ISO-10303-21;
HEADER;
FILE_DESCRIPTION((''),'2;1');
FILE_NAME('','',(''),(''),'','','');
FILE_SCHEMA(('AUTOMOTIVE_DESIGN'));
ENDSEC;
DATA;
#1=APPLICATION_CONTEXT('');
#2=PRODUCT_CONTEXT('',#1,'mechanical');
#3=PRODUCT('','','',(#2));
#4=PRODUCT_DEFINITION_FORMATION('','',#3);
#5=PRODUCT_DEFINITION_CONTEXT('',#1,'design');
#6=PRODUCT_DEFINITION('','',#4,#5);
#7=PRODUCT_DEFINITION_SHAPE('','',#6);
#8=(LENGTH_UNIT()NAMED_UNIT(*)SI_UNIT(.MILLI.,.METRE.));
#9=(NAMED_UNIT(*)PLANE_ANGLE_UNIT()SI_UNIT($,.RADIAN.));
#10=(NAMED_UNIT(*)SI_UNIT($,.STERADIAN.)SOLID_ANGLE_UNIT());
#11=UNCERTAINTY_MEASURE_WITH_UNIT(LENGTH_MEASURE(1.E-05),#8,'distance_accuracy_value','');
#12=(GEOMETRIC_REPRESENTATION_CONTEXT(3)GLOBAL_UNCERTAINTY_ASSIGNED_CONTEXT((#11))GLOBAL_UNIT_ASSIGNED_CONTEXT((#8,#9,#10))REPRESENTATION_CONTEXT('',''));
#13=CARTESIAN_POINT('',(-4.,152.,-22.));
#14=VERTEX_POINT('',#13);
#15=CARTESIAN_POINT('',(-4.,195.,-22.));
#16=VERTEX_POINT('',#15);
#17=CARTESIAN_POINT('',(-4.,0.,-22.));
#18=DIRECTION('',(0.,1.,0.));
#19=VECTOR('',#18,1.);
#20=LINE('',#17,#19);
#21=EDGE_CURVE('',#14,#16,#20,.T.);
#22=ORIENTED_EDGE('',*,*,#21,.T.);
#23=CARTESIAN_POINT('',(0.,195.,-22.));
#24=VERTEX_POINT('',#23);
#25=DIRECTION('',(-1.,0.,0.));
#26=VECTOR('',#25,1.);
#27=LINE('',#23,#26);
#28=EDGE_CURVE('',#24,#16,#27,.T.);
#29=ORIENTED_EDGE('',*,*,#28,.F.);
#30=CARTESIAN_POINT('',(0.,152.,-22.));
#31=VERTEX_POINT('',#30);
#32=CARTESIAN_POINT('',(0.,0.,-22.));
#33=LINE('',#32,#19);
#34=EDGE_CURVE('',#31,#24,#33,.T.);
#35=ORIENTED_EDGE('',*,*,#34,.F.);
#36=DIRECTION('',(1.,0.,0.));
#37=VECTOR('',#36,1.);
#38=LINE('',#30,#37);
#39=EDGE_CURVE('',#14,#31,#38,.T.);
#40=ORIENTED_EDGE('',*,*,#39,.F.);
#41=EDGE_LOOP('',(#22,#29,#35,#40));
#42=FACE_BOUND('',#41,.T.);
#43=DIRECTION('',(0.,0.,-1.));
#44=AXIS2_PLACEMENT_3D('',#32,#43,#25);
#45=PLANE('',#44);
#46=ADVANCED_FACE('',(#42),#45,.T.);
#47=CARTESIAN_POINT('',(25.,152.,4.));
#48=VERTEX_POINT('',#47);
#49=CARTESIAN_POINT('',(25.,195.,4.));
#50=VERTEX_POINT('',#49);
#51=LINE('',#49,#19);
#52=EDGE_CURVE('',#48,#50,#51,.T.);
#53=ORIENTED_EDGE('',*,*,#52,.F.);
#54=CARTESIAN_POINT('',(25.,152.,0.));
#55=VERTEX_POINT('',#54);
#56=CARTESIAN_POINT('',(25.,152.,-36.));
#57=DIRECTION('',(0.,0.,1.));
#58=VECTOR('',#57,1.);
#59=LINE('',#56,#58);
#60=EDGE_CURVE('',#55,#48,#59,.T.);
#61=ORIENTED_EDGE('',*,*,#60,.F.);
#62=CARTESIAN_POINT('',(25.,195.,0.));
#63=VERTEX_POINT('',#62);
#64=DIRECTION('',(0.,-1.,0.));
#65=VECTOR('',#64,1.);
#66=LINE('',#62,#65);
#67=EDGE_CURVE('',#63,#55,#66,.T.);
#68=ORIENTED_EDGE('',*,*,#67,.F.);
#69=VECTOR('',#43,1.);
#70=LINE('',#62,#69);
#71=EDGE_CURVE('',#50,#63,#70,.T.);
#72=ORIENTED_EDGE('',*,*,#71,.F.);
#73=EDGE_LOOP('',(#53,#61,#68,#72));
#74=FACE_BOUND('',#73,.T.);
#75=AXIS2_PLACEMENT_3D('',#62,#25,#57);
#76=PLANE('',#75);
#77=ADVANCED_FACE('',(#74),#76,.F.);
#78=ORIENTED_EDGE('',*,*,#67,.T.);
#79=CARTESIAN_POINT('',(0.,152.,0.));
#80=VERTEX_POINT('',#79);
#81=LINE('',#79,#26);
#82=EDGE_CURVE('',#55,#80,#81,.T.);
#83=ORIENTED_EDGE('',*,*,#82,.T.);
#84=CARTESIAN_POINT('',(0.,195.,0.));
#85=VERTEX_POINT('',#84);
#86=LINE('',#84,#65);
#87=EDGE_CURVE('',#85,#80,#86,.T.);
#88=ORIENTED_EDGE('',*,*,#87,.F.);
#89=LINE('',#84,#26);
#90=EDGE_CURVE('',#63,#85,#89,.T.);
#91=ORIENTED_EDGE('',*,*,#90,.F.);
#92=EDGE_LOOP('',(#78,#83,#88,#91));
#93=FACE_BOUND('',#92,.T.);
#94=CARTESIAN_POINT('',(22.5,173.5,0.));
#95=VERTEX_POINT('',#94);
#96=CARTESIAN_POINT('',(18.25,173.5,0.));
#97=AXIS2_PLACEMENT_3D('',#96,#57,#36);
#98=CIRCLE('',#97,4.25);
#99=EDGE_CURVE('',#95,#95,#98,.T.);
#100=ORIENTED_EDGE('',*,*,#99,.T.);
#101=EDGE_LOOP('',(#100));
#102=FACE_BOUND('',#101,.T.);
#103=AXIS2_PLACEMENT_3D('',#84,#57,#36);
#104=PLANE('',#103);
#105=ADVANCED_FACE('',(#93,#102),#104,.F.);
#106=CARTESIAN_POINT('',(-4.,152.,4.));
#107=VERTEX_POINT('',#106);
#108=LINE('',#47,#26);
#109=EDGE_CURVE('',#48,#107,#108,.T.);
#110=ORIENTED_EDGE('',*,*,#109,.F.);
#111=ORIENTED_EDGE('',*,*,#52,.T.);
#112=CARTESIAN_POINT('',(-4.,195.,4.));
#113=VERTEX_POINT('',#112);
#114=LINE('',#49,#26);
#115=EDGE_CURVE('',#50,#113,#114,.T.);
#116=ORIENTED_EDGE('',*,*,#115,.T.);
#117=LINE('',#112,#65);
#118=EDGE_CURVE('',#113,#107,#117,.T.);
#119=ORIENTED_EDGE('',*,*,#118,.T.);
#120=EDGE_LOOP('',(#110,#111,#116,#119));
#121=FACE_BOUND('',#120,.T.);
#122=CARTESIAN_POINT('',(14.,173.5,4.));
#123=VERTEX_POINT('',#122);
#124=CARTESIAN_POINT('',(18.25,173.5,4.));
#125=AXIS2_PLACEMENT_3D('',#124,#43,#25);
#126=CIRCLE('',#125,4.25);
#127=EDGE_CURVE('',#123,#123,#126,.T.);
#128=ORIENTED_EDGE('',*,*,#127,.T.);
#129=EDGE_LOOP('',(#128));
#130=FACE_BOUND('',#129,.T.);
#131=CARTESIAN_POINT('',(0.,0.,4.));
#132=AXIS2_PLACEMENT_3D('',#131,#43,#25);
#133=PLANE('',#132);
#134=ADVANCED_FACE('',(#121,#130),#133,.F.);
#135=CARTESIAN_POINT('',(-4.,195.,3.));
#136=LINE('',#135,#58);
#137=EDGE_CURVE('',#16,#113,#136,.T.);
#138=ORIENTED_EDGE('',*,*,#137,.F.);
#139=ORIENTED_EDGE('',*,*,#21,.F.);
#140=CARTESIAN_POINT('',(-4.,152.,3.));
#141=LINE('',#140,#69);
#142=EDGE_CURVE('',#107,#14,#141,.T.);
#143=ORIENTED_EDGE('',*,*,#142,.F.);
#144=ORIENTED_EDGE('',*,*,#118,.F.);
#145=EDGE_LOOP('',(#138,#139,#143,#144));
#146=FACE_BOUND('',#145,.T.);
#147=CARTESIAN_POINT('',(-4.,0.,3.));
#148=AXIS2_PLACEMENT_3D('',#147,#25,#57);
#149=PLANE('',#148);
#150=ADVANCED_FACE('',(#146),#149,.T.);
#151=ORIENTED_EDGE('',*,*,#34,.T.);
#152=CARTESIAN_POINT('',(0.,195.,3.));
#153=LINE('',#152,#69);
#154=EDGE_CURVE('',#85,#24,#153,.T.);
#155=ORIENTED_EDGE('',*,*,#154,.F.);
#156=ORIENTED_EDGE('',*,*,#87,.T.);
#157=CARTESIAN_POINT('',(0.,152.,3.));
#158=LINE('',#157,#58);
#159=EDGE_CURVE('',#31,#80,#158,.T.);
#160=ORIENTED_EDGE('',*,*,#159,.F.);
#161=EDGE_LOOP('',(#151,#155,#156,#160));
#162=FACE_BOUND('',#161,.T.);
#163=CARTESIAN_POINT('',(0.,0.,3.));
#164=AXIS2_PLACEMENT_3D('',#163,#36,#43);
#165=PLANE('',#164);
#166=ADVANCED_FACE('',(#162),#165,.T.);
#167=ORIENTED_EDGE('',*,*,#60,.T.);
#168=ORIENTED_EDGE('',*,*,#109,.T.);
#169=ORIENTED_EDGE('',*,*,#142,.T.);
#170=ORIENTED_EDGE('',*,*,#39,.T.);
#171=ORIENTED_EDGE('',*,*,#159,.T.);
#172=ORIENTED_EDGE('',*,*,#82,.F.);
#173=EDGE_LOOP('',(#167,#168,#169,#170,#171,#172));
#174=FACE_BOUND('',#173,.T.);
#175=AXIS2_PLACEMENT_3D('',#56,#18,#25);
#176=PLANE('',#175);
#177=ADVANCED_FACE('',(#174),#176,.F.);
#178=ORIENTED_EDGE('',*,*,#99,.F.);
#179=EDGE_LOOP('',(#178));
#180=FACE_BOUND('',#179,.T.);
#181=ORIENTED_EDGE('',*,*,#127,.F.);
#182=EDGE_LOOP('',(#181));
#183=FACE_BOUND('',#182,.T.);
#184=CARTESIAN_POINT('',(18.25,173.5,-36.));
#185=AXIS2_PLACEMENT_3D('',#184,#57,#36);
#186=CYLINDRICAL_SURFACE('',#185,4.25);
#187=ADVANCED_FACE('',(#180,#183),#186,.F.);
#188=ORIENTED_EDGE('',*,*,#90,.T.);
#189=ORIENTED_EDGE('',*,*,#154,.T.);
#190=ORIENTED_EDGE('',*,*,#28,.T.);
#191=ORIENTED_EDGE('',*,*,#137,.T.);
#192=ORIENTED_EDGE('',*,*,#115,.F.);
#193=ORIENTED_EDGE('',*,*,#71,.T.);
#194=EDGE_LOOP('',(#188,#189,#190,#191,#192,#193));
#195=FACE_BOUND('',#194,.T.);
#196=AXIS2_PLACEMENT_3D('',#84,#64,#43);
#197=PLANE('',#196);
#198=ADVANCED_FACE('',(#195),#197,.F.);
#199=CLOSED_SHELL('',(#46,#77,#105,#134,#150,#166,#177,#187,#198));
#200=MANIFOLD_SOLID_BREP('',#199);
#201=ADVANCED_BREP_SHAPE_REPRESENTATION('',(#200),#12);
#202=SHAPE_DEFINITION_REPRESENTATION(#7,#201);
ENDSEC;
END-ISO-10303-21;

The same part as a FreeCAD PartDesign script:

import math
import FreeCAD as App
import Part
import Sketcher

V = App.Vector
Q = App.Units.Quantity


def add_polygon(sketch, points):
    """Adds a closed chain of lines whose ends are joined by coincident constraints."""
    first, n = sketch.GeometryCount, len(points)
    for a, b in zip(points, points[1:] + points[:1]):
        sketch.addGeometry(Part.LineSegment(App.Vector(*a, 0), App.Vector(*b, 0)), False)
    for i in range(n):
        sketch.addConstraint(Sketcher.Constraint("Coincident", first + i, 2, first + (i + 1) % n, 1))

doc = App.newDocument("Part")
params = doc.addObject("Spreadsheet::Sheet", "Params")
for row, (alias, value) in enumerate([
    ("sketch1_width", "25 mm"),
    ("sketch1_height", "3 mm"),
    ("pad1_length", "195 mm"),
    ("sketch2_diameter", "8.5 mm"),
    ("pocket1_length", "195 mm"),
    ("sketch3_width", "4 mm"),
    ("sketch3_height", "25 mm"),
    ("pad2_length", "195 mm"),
    ("sketch4_diameter", "8.5 mm"),
    ("sketch4_width", "29 mm"),
    ("sketch4_height", "195 mm"),
    ("pad3_length", "1 mm"),
    ("sketch5_height", "152 mm"),
    ("pocket2_length", "40 mm"),
    ("sketch6_diameter", "8.5 mm"),
    ("pocket3_length", "40 mm"),
    ("sketch7_radius", "4.25 mm"),
    ("pad4_length", "4 mm"),
], start=1):
    params.set(f"A{row}", alias)
    params.set(f"B{row}", "=" + value)
    params.setAlias(f"B{row}", alias)

body = doc.addObject("PartDesign::Body", "Body")

sketch1 = body.newObject("Sketcher::SketchObject", "Sketch")
sketch1.AttachmentSupport = (doc.getObject("XZ_Plane"), [""])
sketch1.MapMode = "FlatFace"
add_polygon(sketch1, [(0, 0), (0, 3), (25, 3), (25, 0)])
sketch1.addConstraint([
    Sketcher.Constraint("Vertical", 0),
    Sketcher.Constraint("Horizontal", 1),
    Sketcher.Constraint("Vertical", 2),
    Sketcher.Constraint("Horizontal", 3),
    Sketcher.Constraint("Coincident", 3, 2, -1, 1),
    Sketcher.Constraint("DistanceX", 1, 1, 1, 2, Q("25 mm")),
    Sketcher.Constraint("DistanceY", 0, 1, 0, 2, Q("3 mm")),
])
sketch1.setExpression("Constraints[9]", "Params.sketch1_width")
sketch1.setExpression("Constraints[10]", "Params.sketch1_height")
pad1 = body.newObject("PartDesign::Pad", "Pad")
pad1.Profile = sketch1
pad1.setExpression("Length", "Params.pad1_length")
pad1.Reversed = True

sketch2 = body.newObject("Sketcher::SketchObject", "Sketch001")
sketch2.AttachmentSupport = (doc.getObject("XY_Plane"), [""])
sketch2.MapMode = "FlatFace"
sketch2.AttachmentOffset = App.Placement(V(0, 0, 3), App.Rotation())
sketch2.addGeometry([
    Part.Circle(V(18.2, 180, 0), V(0, 0, 1), 4.2),
    Part.Circle(V(18.2, 97.5, 0), V(0, 0, 1), 4.2),
    Part.Circle(V(18.2, 15, 0), V(0, 0, 1), 4.2),
], False)
sketch2.addConstraint([
    Sketcher.Constraint("Equal", 0, 1),
    Sketcher.Constraint("Equal", 1, 2),
    Sketcher.Constraint("Vertical", 0, 3, 1, 3),
    Sketcher.Constraint("Vertical", 1, 3, 2, 3),
    Sketcher.Constraint("Diameter", 0, Q("8.5 mm")),
    Sketcher.Constraint("DistanceY", -1, 1, 0, 3, Q("180 mm")),
    Sketcher.Constraint("DistanceY", -1, 1, 2, 3, Q("15 mm")),
    Sketcher.Constraint("DistanceY", -1, 1, 1, 3, Q("97.5 mm")),
    Sketcher.Constraint("DistanceX", -1, 1, 0, 3, Q("18.25 mm")),
])
sketch2.setExpression("Constraints[4]", "Params.sketch2_diameter")
pocket1 = body.newObject("PartDesign::Pocket", "Pocket")
pocket1.Profile = sketch2
pocket1.setExpression("Length", "Params.pocket1_length")

sketch3 = body.newObject("Sketcher::SketchObject", "Sketch002")
sketch3.AttachmentSupport = (doc.getObject("XZ_Plane"), [""])
sketch3.MapMode = "FlatFace"
sketch3.AttachmentOffset = App.Placement(V(0, 0, -195), App.Rotation())
add_polygon(sketch3, [(-4, -22), (-4, 3), (0, 3), (0, -22)])
sketch3.addConstraint([
    Sketcher.Constraint("Vertical", 0),
    Sketcher.Constraint("Horizontal", 1),
    Sketcher.Constraint("Vertical", 2),
    Sketcher.Constraint("Horizontal", 3),
    Sketcher.Constraint("PointOnObject", 1, 2, -2),
    Sketcher.Constraint("DistanceX", 1, 1, 1, 2, Q("4 mm")),
    Sketcher.Constraint("DistanceY", 0, 1, 0, 2, Q("25 mm")),
    Sketcher.Constraint("DistanceY", -1, 1, 0, 2, Q("3 mm")),
])
sketch3.setExpression("Constraints[9]", "Params.sketch3_width")
sketch3.setExpression("Constraints[10]", "Params.sketch3_height")
pad2 = body.newObject("PartDesign::Pad", "Pad001")
pad2.Profile = sketch3
pad2.setExpression("Length", "Params.pad2_length")

sketch4 = body.newObject("Sketcher::SketchObject", "Sketch003")
sketch4.AttachmentSupport = (doc.getObject("XY_Plane"), [""])
sketch4.MapMode = "FlatFace"
sketch4.AttachmentOffset = App.Placement(V(0, 0, 4), App.Rotation())
add_polygon(sketch4, [(-4, 195), (-4, 0), (25, 0), (25, 195)])
sketch4.addGeometry(Part.Circle(V(18.2, 15, 0), V(0, 0, 1), 4.2), False)
sketch4.addGeometry(Part.Circle(V(18.2, 97.5, 0), V(0, 0, 1), 4.2), False)
sketch4.addGeometry(Part.Circle(V(18.2, 180, 0), V(0, 0, 1), 4.2), False)
sketch4.addConstraint([
    Sketcher.Constraint("Vertical", 0),
    Sketcher.Constraint("Horizontal", 1),
    Sketcher.Constraint("Vertical", 2),
    Sketcher.Constraint("Horizontal", 3),
    Sketcher.Constraint("Equal", 4, 5),
    Sketcher.Constraint("Equal", 5, 6),
    Sketcher.Constraint("PointOnObject", 0, 2, -1),
    Sketcher.Constraint("Vertical", 4, 3, 5, 3),
    Sketcher.Constraint("Vertical", 5, 3, 6, 3),
    Sketcher.Constraint("Diameter", 4, Q("8.5 mm")),
    Sketcher.Constraint("DistanceX", 1, 1, 1, 2, Q("29 mm")),
    Sketcher.Constraint("DistanceY", 0, 2, 0, 1, Q("195 mm")),
    Sketcher.Constraint("DistanceY", -1, 1, 4, 3, Q("15 mm")),
    Sketcher.Constraint("DistanceY", -1, 1, 6, 3, Q("180 mm")),
    Sketcher.Constraint("DistanceX", 0, 2, -1, 1, Q("4 mm")),
    Sketcher.Constraint("DistanceY", -1, 1, 5, 3, Q("97.5 mm")),
    Sketcher.Constraint("DistanceX", -1, 1, 4, 3, Q("18.25 mm")),
])
sketch4.setExpression("Constraints[13]", "Params.sketch4_diameter")
sketch4.setExpression("Constraints[14]", "Params.sketch4_width")
sketch4.setExpression("Constraints[15]", "Params.sketch4_height")
pad3 = body.newObject("PartDesign::Pad", "Pad002")
pad3.Profile = sketch4
pad3.setExpression("Length", "Params.pad3_length")
pad3.Reversed = True

sketch5 = body.newObject("Sketcher::SketchObject", "Sketch004")
sketch5.AttachmentSupport = (doc.getObject("XY_Plane"), [""])
sketch5.MapMode = "FlatFace"
sketch5.AttachmentOffset = App.Placement(V(0, 0, 4), App.Rotation())
add_polygon(sketch5, [(-125, 152), (-125, 0), (25, 0), (25, 152)])
sketch5.addConstraint([
    Sketcher.Constraint("Vertical", 0),
    Sketcher.Constraint("Horizontal", 1),
    Sketcher.Constraint("Vertical", 2),
    Sketcher.Constraint("Horizontal", 3),
    Sketcher.Constraint("PointOnObject", 0, 2, -1),
    Sketcher.Constraint("DistanceY", 0, 2, 0, 1, Q("152 mm")),
    Sketcher.Constraint("DistanceX", -1, 1, 1, 2, Q("25 mm")),
    Sketcher.Constraint("DistanceX", 1, 1, 1, 2, Q("149.811439 mm")),
])
sketch5.setExpression("Constraints[9]", "Params.sketch5_height")
pocket2 = body.newObject("PartDesign::Pocket", "Pocket001")
pocket2.Profile = sketch5
pocket2.setExpression("Length", "Params.pocket2_length")

sketch6 = body.newObject("Sketcher::SketchObject", "Sketch005")
sketch6.AttachmentSupport = (doc.getObject("XY_Plane"), [""])
sketch6.MapMode = "FlatFace"
sketch6.AttachmentOffset = App.Placement(V(0, 0, 4), App.Rotation())
sketch6.addGeometry(Part.Circle(V(18.2, 173.5, 0), V(0, 0, 1), 4.2), False)
sketch6.addConstraint([
    Sketcher.Constraint("Diameter", 0, Q("8.5 mm")),
    Sketcher.Constraint("DistanceY", -1, 1, 0, 3, Q("173.5 mm")),
    Sketcher.Constraint("DistanceX", -1, 1, 0, 3, Q("18.25 mm")),
])
sketch6.setExpression("Constraints[0]", "Params.sketch6_diameter")
pocket3 = body.newObject("PartDesign::Pocket", "Pocket002")
pocket3.Profile = sketch6
pocket3.setExpression("Length", "Params.pocket3_length")

sketch7 = body.newObject("Sketcher::SketchObject", "Sketch006")
sketch7.AttachmentSupport = (doc.getObject("XY_Plane"), [""])
sketch7.MapMode = "FlatFace"
sketch7.AttachmentOffset = App.Placement(V(0, 0, 4), App.Rotation())
sketch7.addGeometry([
    Part.ArcOfCircle(Part.Circle(V(18.2, 180, 0), V(0, 0, 1), 4.3), math.radians(-50), math.radians(0)),
    Part.ArcOfCircle(Part.Circle(V(18.2, 180, 0), V(0, 0, 1), 4.2), math.radians(0), math.radians(230)),
    Part.ArcOfCircle(Part.Circle(V(18.2, 173.5, 0), V(0, 0, 1), 4.3), math.radians(50), math.radians(130)),
], False)
sketch7.addConstraint([
    Sketcher.Constraint("Tangent", 0, 2, 1, 1),
    Sketcher.Constraint("Coincident", 1, 2, 2, 2),
    Sketcher.Constraint("Coincident", 2, 1, 0, 1),
    Sketcher.Constraint("Equal", 0, 1),
    Sketcher.Constraint("Equal", 1, 2),
    Sketcher.Constraint("Horizontal", 1, 3, 0, 2),
    Sketcher.Constraint("Horizontal", 1, 2, 2, 1),
    Sketcher.Constraint("Radius", 0, Q("4.25 mm")),
    Sketcher.Constraint("DistanceY", -1, 1, 0, 3, Q("180 mm")),
    Sketcher.Constraint("DistanceY", -1, 1, 2, 3, Q("173.5 mm")),
    Sketcher.Constraint("DistanceX", -1, 1, 0, 2, Q("22.5 mm")),
])
sketch7.setExpression("Constraints[7]", "Params.sketch7_radius")
pad4 = body.newObject("PartDesign::Pad", "Pad003")
pad4.Profile = sketch7
pad4.setExpression("Length", "Params.pad4_length")
pad4.Reversed = True

doc.recompute()
